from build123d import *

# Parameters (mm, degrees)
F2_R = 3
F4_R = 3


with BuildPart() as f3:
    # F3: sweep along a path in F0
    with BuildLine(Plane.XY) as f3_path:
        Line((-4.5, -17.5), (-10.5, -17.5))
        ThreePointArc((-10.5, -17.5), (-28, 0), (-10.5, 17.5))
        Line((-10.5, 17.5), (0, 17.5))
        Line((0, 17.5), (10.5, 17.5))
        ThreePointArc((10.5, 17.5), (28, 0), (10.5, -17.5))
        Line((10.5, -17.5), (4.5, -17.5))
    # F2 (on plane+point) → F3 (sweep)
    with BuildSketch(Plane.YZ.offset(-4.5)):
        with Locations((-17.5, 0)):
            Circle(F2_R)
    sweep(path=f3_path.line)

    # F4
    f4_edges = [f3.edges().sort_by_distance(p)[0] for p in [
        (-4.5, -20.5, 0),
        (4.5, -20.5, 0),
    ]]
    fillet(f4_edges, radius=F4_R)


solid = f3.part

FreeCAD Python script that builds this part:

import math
import FreeCAD as App
import Part
import Sketcher
from FreeCAD import Vector


def edges_at(feature, points):
    """Names of the edges that pass closest to the given points."""
    edges = feature.Shape.Edges
    near = lambda p: min(range(len(edges)), key=lambda i: edges[i].distToShape(Part.Vertex(*p))[0])
    return sorted({f"Edge{near(p) + 1}" for p in points})

doc = App.newDocument("Part")
body = doc.addObject("PartDesign::Body", "Body")

# Sketch on YZ plane
sketch1 = doc.addObject("Sketcher::SketchObject", "Sketch")
body.addObject(sketch1)
sketch1.AttachmentSupport = (doc.YZ_Plane, [""])
sketch1.MapMode = "FlatFace"
sketch1.AttachmentOffset = App.Placement(Vector(0, 0, -4.5), App.Rotation())
sketch1.addGeometry(Part.Circle(Vector(-17.5, 0, 0), Vector(0, 0, 1), 3), False)
sketch1.addConstraint([
    Sketcher.Constraint("PointOnObject", 0, 3, -1),
    Sketcher.Constraint("Diameter", 0, 6.0),
    Sketcher.Constraint("DistanceX", 0, 3, -1, 1, 17.5),
])

# Sketch on XY plane
sketch2 = doc.addObject("Sketcher::SketchObject", "Sketch001")
body.addObject(sketch2)
sketch2.AttachmentSupport = (doc.XY_Plane, [""])
sketch2.MapMode = "FlatFace"
sketch2.addGeometry([
    Part.LineSegment(Vector(-4, -18, 0), Vector(-10, -18, 0)),  # 0
    Part.ArcOfCircle(Part.Circle(Vector(-10, 0, 0), Vector(0, 0, 1), 18), math.radians(90), math.radians(270)),  # 1
    Part.LineSegment(Vector(-10, 18, 0), Vector(10, 18, 0)),  # 2
    Part.ArcOfCircle(Part.Circle(Vector(10, 0, 0), Vector(0, 0, 1), 18), math.radians(-90), math.radians(90)),  # 3
    Part.LineSegment(Vector(10, -18, 0), Vector(4, -18, 0)),  # 4
], False)
sketch2.addConstraint([
    Sketcher.Constraint("Tangent", 0, 2, 1, 2),
    Sketcher.Constraint("Tangent", 1, 1, 2, 1),
    Sketcher.Constraint("Tangent", 2, 2, 3, 2),
    Sketcher.Constraint("Tangent", 3, 1, 4, 1),
    Sketcher.Constraint("Horizontal", 0),
    Sketcher.Constraint("Horizontal", 2),
    Sketcher.Constraint("Horizontal", 4),
    Sketcher.Constraint("Equal", 1, 3),
    Sketcher.Constraint("Symmetric", 1, 3, 3, 3, -1, 1),
    Sketcher.Constraint("Equal", 0, 4),
    Sketcher.Constraint("Radius", 1, 17.5),
    Sketcher.Constraint("DistanceX", 0, 2, 0, 1, 6.0),
    Sketcher.Constraint("DistanceX", 2, 1, 2, 2, 21.0),
])
doc.recompute()

additivepipe = doc.addObject("PartDesign::AdditivePipe", "AdditivePipe")
body.addObject(additivepipe)
additivepipe.Profile = sketch1
additivepipe.Spine = (sketch2, ["Edge1", "Edge2", "Edge3", "Edge4", "Edge5"])
doc.recompute()

fillet = doc.addObject("PartDesign::Fillet", "Fillet")
body.addObject(fillet)
fillet.Base = (additivepipe, edges_at(additivepipe, [(-4.5, -20.5, 0), (4.5, -20.5, 0)]))
fillet.Radius = 3

doc.recompute()
